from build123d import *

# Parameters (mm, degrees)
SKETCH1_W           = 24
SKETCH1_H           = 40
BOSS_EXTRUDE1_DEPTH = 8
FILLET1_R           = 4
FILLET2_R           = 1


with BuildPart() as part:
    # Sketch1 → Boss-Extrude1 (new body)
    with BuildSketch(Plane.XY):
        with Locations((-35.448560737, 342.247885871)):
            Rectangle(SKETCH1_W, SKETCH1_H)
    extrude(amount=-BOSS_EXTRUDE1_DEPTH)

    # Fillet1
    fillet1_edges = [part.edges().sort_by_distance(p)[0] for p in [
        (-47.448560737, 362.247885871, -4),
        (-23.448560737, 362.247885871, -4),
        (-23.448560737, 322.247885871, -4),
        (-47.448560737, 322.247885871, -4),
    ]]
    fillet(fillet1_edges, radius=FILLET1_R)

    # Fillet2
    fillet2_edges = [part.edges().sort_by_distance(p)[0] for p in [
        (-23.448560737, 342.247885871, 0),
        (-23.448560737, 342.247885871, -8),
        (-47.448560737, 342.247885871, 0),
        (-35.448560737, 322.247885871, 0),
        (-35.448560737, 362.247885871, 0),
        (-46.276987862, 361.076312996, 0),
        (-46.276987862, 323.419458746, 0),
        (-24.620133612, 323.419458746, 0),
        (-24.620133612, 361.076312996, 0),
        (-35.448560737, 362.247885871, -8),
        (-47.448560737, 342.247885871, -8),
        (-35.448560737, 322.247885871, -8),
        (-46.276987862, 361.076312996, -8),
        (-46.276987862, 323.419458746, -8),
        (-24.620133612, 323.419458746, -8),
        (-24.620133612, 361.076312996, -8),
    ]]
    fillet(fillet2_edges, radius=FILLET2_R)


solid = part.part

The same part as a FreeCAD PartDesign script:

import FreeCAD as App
import Part
import Sketcher

V = App.Vector
Q = App.Units.Quantity


def edges_at(feature, points):
    """Names of the edges that pass closest to the given points."""
    edges = feature.Shape.Edges
    near = lambda p: min(range(len(edges)), key=lambda i: edges[i].distToShape(Part.Vertex(*p))[0])
    return sorted({f"Edge{near(p) + 1}" for p in points})


def add_polygon(sketch, points):
    """Adds a closed chain of lines whose ends are joined by coincident constraints."""
    first, n = sketch.GeometryCount, len(points)
    for a, b in zip(points, points[1:] + points[:1]):
        sketch.addGeometry(Part.LineSegment(App.Vector(*a, 0), App.Vector(*b, 0)), False)
    for i in range(n):
        sketch.addConstraint(Sketcher.Constraint("Coincident", first + i, 2, first + (i + 1) % n, 1))

doc = App.newDocument("Part")
params = doc.addObject("Spreadsheet::Sheet", "Params")
for row, (alias, value) in enumerate([
    ("sketch1_width", "24 mm"),
    ("sketch1_height", "40 mm"),
    ("pad1_length", "8 mm"),
    ("fillet_radius", "4 mm"),
    ("fillet2_radius", "1 mm"),
], start=1):
    params.set(f"A{row}", alias)
    params.set(f"B{row}", "=" + value)
    params.setAlias(f"B{row}", alias)

body = doc.addObject("PartDesign::Body", "Body")

sketch1 = body.newObject("Sketcher::SketchObject", "Sketch")
sketch1.AttachmentSupport = (doc.getObject("XY_Plane"), [""])
sketch1.MapMode = "FlatFace"
add_polygon(sketch1, [(-47, 362), (-47, 322), (-23, 322), (-23, 362)])
sketch1.addConstraint([
    Sketcher.Constraint("Vertical", 0),
    Sketcher.Constraint("Horizontal", 1),
    Sketcher.Constraint("Vertical", 2),
    Sketcher.Constraint("Horizontal", 3),
    Sketcher.Constraint("DistanceX", 1, 1, 1, 2, Q("24 mm")),
    Sketcher.Constraint("DistanceY", 0, 2, 0, 1, Q("40 mm")),
    Sketcher.Constraint("DistanceX", 0, 2, -1, 1, Q("47.448561 mm")),
    Sketcher.Constraint("DistanceY", -1, 1, 0, 2, Q("322.247886 mm")),
])
sketch1.setExpression("Constraints[8]", "Params.sketch1_width")
sketch1.setExpression("Constraints[9]", "Params.sketch1_height")
pad1 = body.newObject("PartDesign::Pad", "Pad")
pad1.Profile = sketch1
pad1.setExpression("Length", "Params.pad1_length")
pad1.Reversed = True
doc.recompute()

fillet = body.newObject("PartDesign::Fillet", "Fillet")
fillet.Base = (pad1, edges_at(pad1, [
    (-47.449, 362.248, -4),
    (-23.449, 362.248, -4),
    (-23.449, 322.248, -4),
    (-47.449, 322.248, -4),
]))
fillet.setExpression("Radius", "Params.fillet_radius")
doc.recompute()

fillet2 = body.newObject("PartDesign::Fillet", "Fillet001")
fillet2.Base = (fillet, edges_at(fillet, [
    (-23.449, 342.248, 0),
    (-23.449, 342.248, -8),
    (-47.449, 342.248, 0),
    (-35.449, 322.248, 0),
    (-35.449, 362.248, 0),
    (-46.277, 361.076, 0),
    (-46.277, 323.419, 0),
    (-24.62, 323.419, 0),
    (-24.62, 361.076, 0),
    (-35.449, 362.248, -8),
    (-47.449, 342.248, -8),
    (-35.449, 322.248, -8),
    (-46.277, 361.076, -8),
    (-46.277, 323.419, -8),
    (-24.62, 323.419, -8),
    (-24.62, 361.076, -8),
]))
fillet2.setExpression("Radius", "Params.fillet2_radius")

doc.recompute()
